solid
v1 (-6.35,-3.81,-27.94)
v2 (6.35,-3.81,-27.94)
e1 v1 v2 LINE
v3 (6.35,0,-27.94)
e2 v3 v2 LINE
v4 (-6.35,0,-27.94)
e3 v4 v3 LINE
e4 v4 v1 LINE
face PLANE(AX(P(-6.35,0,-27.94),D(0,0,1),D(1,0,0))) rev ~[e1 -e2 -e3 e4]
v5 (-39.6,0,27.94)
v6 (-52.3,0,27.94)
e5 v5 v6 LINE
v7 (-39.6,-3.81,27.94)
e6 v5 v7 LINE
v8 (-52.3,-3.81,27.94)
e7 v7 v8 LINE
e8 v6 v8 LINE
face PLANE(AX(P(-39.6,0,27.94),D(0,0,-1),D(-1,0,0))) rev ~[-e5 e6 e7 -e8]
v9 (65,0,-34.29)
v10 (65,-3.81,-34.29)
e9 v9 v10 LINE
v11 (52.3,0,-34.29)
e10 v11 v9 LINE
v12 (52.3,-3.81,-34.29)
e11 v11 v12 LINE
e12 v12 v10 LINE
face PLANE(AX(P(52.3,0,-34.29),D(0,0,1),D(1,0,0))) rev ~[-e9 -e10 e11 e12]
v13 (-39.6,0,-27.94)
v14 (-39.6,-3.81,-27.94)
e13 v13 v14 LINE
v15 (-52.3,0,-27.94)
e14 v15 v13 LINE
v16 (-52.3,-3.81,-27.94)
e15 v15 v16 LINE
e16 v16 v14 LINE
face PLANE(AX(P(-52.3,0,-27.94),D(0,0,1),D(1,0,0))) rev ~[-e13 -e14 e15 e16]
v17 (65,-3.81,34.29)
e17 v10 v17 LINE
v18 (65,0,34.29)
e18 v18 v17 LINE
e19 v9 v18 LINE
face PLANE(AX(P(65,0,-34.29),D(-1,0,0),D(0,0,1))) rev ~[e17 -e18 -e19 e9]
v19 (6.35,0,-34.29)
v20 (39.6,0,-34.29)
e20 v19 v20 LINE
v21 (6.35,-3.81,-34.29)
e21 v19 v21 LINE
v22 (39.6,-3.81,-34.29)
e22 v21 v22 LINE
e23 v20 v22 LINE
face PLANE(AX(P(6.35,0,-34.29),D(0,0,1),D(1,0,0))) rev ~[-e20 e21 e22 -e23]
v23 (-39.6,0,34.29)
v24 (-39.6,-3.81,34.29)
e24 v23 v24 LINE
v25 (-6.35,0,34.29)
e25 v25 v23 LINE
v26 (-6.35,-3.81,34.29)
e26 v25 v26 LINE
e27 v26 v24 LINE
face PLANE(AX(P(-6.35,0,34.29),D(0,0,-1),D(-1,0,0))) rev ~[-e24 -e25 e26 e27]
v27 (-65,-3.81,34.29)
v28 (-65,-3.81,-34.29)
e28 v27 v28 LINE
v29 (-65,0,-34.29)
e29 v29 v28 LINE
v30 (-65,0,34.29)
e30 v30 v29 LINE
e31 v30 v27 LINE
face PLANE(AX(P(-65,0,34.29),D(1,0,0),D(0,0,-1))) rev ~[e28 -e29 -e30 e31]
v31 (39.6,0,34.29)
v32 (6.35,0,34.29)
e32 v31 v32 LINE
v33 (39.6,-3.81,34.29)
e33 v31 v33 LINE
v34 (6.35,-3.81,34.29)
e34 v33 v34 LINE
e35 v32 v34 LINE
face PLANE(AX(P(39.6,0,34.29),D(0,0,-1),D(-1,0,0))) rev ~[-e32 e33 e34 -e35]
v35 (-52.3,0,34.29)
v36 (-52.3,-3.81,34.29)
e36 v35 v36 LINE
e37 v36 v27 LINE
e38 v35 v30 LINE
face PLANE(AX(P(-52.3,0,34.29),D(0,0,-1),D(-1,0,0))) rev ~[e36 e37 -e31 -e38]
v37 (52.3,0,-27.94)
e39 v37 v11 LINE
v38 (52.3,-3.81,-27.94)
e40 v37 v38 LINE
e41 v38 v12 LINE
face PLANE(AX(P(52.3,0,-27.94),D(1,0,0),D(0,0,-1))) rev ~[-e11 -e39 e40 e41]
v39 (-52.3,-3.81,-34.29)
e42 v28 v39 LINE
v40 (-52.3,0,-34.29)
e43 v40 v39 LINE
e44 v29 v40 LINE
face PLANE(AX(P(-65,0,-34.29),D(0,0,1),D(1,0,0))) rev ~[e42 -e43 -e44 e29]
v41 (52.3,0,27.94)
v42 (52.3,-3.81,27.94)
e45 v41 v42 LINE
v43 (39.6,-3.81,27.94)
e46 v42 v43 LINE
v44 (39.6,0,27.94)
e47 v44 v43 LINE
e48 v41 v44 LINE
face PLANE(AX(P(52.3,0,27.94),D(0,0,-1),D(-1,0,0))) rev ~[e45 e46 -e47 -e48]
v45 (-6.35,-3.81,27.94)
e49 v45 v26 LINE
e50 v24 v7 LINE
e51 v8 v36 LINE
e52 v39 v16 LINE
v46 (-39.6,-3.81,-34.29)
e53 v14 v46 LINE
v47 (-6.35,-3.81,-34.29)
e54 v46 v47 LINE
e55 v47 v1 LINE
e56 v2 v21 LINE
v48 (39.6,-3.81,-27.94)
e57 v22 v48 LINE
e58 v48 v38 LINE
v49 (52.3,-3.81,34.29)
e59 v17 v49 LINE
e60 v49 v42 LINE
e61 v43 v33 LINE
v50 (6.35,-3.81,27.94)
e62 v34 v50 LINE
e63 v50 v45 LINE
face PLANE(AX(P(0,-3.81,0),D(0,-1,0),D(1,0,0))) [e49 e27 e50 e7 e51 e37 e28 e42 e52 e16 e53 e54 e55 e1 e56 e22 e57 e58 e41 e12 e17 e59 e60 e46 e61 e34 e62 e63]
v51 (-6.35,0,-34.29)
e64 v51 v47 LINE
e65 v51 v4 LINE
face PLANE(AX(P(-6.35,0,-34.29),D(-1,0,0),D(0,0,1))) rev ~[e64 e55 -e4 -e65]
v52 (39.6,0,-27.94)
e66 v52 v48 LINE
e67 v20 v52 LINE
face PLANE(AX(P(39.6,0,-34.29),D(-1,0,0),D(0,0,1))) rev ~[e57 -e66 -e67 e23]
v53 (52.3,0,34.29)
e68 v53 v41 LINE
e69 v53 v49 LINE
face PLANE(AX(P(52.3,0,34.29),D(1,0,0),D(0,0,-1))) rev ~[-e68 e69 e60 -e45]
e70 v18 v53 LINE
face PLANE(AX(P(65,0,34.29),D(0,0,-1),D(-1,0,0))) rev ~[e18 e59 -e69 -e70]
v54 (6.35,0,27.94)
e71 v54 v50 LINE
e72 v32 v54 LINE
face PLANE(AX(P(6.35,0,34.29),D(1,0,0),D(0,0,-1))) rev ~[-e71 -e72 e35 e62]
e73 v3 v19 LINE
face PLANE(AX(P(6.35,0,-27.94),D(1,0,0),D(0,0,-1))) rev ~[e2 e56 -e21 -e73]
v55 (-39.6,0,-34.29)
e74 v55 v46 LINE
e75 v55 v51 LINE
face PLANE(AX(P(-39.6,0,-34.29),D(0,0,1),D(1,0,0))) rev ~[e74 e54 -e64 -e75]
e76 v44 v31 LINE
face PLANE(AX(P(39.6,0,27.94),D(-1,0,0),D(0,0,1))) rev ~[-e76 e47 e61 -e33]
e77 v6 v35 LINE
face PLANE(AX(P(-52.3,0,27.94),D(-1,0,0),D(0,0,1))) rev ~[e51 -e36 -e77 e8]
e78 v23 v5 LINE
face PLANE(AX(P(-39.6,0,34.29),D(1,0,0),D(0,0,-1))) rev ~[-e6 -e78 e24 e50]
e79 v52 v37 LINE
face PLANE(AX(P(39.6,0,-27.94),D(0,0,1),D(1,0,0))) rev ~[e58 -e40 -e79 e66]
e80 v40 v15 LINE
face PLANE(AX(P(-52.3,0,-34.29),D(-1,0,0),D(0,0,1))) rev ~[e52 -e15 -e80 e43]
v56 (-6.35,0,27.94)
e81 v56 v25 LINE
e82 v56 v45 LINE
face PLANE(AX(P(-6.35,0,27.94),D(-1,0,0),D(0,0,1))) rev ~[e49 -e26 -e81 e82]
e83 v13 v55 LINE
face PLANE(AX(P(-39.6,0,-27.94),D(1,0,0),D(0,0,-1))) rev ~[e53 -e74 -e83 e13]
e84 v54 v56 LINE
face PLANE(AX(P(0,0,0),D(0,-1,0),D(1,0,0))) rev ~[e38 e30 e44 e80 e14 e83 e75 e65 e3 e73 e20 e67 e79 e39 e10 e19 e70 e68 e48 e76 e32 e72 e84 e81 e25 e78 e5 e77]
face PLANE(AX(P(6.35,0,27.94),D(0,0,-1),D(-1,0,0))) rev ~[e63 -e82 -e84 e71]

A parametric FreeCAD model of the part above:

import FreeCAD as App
import Part
import Sketcher
from FreeCAD import Vector
Q = App.Units.Quantity

doc = App.newDocument("Part")
body = doc.addObject("PartDesign::Body", "Body")

sketch1 = body.newObject("Sketcher::SketchObject", "Sketch")
sketch1.AttachmentSupport = (doc.getObject("XZ_Plane"), [""])
sketch1.MapMode = "FlatFace"
sketch1.addGeometry(Part.LineSegment(Vector(-52.3, 34.29, 0), Vector(-65, 34.29, 0)), False)
sketch1.addGeometry(Part.LineSegment(Vector(-65, 34.29, 0), Vector(-65, -34.29, 0)), False)
sketch1.addGeometry(Part.LineSegment(Vector(-65, -34.29, 0), Vector(-52.3, -34.29, 0)), False)
sketch1.addGeometry(Part.LineSegment(Vector(-52.3, -34.29, 0), Vector(-52.3, -27.94, 0)), False)
sketch1.addGeometry(Part.LineSegment(Vector(-52.3, -27.94, 0), Vector(-39.6, -27.94, 0)), False)
sketch1.addGeometry(Part.LineSegment(Vector(-39.6, -27.94, 0), Vector(-39.6, -34.29, 0)), False)
sketch1.addGeometry(Part.LineSegment(Vector(-39.6, -34.29, 0), Vector(-6.35, -34.29, 0)), False)
sketch1.addGeometry(Part.LineSegment(Vector(-6.35, -34.29, 0), Vector(-6.35, -27.94, 0)), False)
sketch1.addGeometry(Part.LineSegment(Vector(-6.35, -27.94, 0), Vector(6.35, -27.94, 0)), False)
sketch1.addGeometry(Part.LineSegment(Vector(6.35, -27.94, 0), Vector(6.35, -34.29, 0)), False)
sketch1.addGeometry(Part.LineSegment(Vector(6.35, -34.29, 0), Vector(39.6, -34.29, 0)), False)
sketch1.addGeometry(Part.LineSegment(Vector(39.6, -34.29, 0), Vector(39.6, -27.94, 0)), False)
sketch1.addGeometry(Part.LineSegment(Vector(39.6, -27.94, 0), Vector(52.3, -27.94, 0)), False)
sketch1.addGeometry(Part.LineSegment(Vector(52.3, -27.94, 0), Vector(52.3, -34.29, 0)), False)
sketch1.addGeometry(Part.LineSegment(Vector(52.3, -34.29, 0), Vector(65, -34.29, 0)), False)
sketch1.addGeometry(Part.LineSegment(Vector(65, -34.29, 0), Vector(65, 34.29, 0)), False)
sketch1.addGeometry(Part.LineSegment(Vector(65, 34.29, 0), Vector(52.3, 34.29, 0)), False)
sketch1.addGeometry(Part.LineSegment(Vector(52.3, 34.29, 0), Vector(52.3, 27.94, 0)), False)
sketch1.addGeometry(Part.LineSegment(Vector(52.3, 27.94, 0), Vector(39.6, 27.94, 0)), False)
sketch1.addGeometry(Part.LineSegment(Vector(39.6, 27.94, 0), Vector(39.6, 34.29, 0)), False)
sketch1.addGeometry(Part.LineSegment(Vector(39.6, 34.29, 0), Vector(6.35, 34.29, 0)), False)
sketch1.addGeometry(Part.LineSegment(Vector(6.35, 34.29, 0), Vector(6.35, 27.94, 0)), False)
sketch1.addGeometry(Part.LineSegment(Vector(6.35, 27.94, 0), Vector(-6.35, 27.94, 0)), False)
sketch1.addGeometry(Part.LineSegment(Vector(-6.35, 27.94, 0), Vector(-6.35, 34.29, 0)), False)
sketch1.addGeometry(Part.LineSegment(Vector(-6.35, 34.29, 0), Vector(-39.6, 34.29, 0)), False)
sketch1.addGeometry(Part.LineSegment(Vector(-39.6, 34.29, 0), Vector(-39.6, 27.94, 0)), False)
sketch1.addGeometry(Part.LineSegment(Vector(-39.6, 27.94, 0), Vector(-52.3, 27.94, 0)), False)
sketch1.addGeometry(Part.LineSegment(Vector(-52.3, 27.94, 0), Vector(-52.3, 34.29, 0)), False)
sketch1.addConstraint(Sketcher.Constraint("Coincident", 0, 2, 1, 1))
sketch1.addConstraint(Sketcher.Constraint("Coincident", 1, 2, 2, 1))
sketch1.addConstraint(Sketcher.Constraint("Coincident", 2, 2, 3, 1))
sketch1.addConstraint(Sketcher.Constraint("Coincident", 3, 2, 4, 1))
sketch1.addConstraint(Sketcher.Constraint("Coincident", 4, 2, 5, 1))
sketch1.addConstraint(Sketcher.Constraint("Coincident", 5, 2, 6, 1))
sketch1.addConstraint(Sketcher.Constraint("Coincident", 6, 2, 7, 1))
sketch1.addConstraint(Sketcher.Constraint("Coincident", 7, 2, 8, 1))
sketch1.addConstraint(Sketcher.Constraint("Coincident", 8, 2, 9, 1))
sketch1.addConstraint(Sketcher.Constraint("Coincident", 9, 2, 10, 1))
sketch1.addConstraint(Sketcher.Constraint("Coincident", 10, 2, 11, 1))
sketch1.addConstraint(Sketcher.Constraint("Coincident", 11, 2, 12, 1))
sketch1.addConstraint(Sketcher.Constraint("Coincident", 12, 2, 13, 1))
sketch1.addConstraint(Sketcher.Constraint("Coincident", 13, 2, 14, 1))
sketch1.addConstraint(Sketcher.Constraint("Coincident", 14, 2, 15, 1))
sketch1.addConstraint(Sketcher.Constraint("Coincident", 15, 2, 16, 1))
sketch1.addConstraint(Sketcher.Constraint("Coincident", 16, 2, 17, 1))
sketch1.addConstraint(Sketcher.Constraint("Coincident", 17, 2, 18, 1))
sketch1.addConstraint(Sketcher.Constraint("Coincident", 18, 2, 19, 1))
sketch1.addConstraint(Sketcher.Constraint("Coincident", 19, 2, 20, 1))
sketch1.addConstraint(Sketcher.Constraint("Coincident", 20, 2, 21, 1))
sketch1.addConstraint(Sketcher.Constraint("Coincident", 21, 2, 22, 1))
sketch1.addConstraint(Sketcher.Constraint("Coincident", 22, 2, 23, 1))
sketch1.addConstraint(Sketcher.Constraint("Coincident", 23, 2, 24, 1))
sketch1.addConstraint(Sketcher.Constraint("Coincident", 24, 2, 25, 1))
sketch1.addConstraint(Sketcher.Constraint("Coincident", 25, 2, 26, 1))
sketch1.addConstraint(Sketcher.Constraint("Coincident", 26, 2, 27, 1))
sketch1.addConstraint(Sketcher.Constraint("Coincident", 27, 2, 0, 1))
sketch1.addConstraint(Sketcher.Constraint("Horizontal", 0))
sketch1.addConstraint(Sketcher.Constraint("Vertical", 1))
sketch1.addConstraint(Sketcher.Constraint("Horizontal", 2))
sketch1.addConstraint(Sketcher.Constraint("Vertical", 3))
sketch1.addConstraint(Sketcher.Constraint("Horizontal", 4))
sketch1.addConstraint(Sketcher.Constraint("Vertical", 5))
sketch1.addConstraint(Sketcher.Constraint("Horizontal", 6))
sketch1.addConstraint(Sketcher.Constraint("Vertical", 7))
sketch1.addConstraint(Sketcher.Constraint("Horizontal", 8))
sketch1.addConstraint(Sketcher.Constraint("Vertical", 9))
sketch1.addConstraint(Sketcher.Constraint("Horizontal", 10))
sketch1.addConstraint(Sketcher.Constraint("Vertical", 11))
sketch1.addConstraint(Sketcher.Constraint("Horizontal", 12))
sketch1.addConstraint(Sketcher.Constraint("Vertical", 13))
sketch1.addConstraint(Sketcher.Constraint("Horizontal", 14))
sketch1.addConstraint(Sketcher.Constraint("Vertical", 15))
sketch1.addConstraint(Sketcher.Constraint("Horizontal", 16))
sketch1.addConstraint(Sketcher.Constraint("Vertical", 17))
sketch1.addConstraint(Sketcher.Constraint("Horizontal", 18))
sketch1.addConstraint(Sketcher.Constraint("Vertical", 19))
sketch1.addConstraint(Sketcher.Constraint("Horizontal", 20))
sketch1.addConstraint(Sketcher.Constraint("Vertical", 21))
sketch1.addConstraint(Sketcher.Constraint("Horizontal", 22))
sketch1.addConstraint(Sketcher.Constraint("Vertical", 23))
sketch1.addConstraint(Sketcher.Constraint("Horizontal", 24))
sketch1.addConstraint(Sketcher.Constraint("Vertical", 25))
sketch1.addConstraint(Sketcher.Constraint("Horizontal", 26))
sketch1.addConstraint(Sketcher.Constraint("Vertical", 27))
sketch1.addConstraint(Sketcher.Constraint("Symmetric", 0, 2, 14, 2, -1, 1))
sketch1.addConstraint(Sketcher.Constraint("Symmetric", 2, 2, 16, 2, -1, 1))
sketch1.addConstraint(Sketcher.Constraint("Symmetric", 4, 2, 18, 2, -1, 1))
sketch1.addConstraint(Sketcher.Constraint("Symmetric", 6, 2, 20, 2, -1, 1))
sketch1.addConstraint(Sketcher.Constraint("Symmetric", 8, 2, 22, 2, -1, 1))
sketch1.addConstraint(Sketcher.Constraint("Symmetric", 10, 2, 24, 2, -1, 1))
sketch1.addConstraint(Sketcher.Constraint("Symmetric", 12, 2, 26, 2, -1, 1))
sketch1.addConstraint(Sketcher.Constraint("Symmetric", 6, 2, 9, 2, -2))
sketch1.addConstraint(Sketcher.Constraint("Symmetric", 4, 2, 11, 2, -2))
sketch1.addConstraint(Sketcher.Constraint("Symmetric", 2, 2, 13, 2, -2))
sketch1.addConstraint(Sketcher.Constraint("Horizontal", 2, 2, 5, 2))
sketch1.addConstraint(Sketcher.Constraint("Horizontal", 4, 2, 7, 2))
sketch1.addConstraint(Sketcher.Constraint("Equal", 2, 4))
sketch1.addConstraint(Sketcher.Constraint("Equal", 4, 8))
sketch1.addConstraint(Sketcher.Constraint("DistanceX", 0, 2, 0, 1, Q("0.5 in")))
sketch1.addConstraint(Sketcher.Constraint("DistanceY", 1, 2, 1, 1, Q("2.7 in")))
sketch1.addConstraint(Sketcher.Constraint("DistanceY", 3, 1, 3, 2, Q("0.25 in")))
sketch1.addConstraint(Sketcher.Constraint("DistanceX", 6, 1, 6, 2, 33.25))
pad1 = body.newObject("PartDesign::Pad", "Pad")
pad1.Profile = sketch1
pad1.Length = Q("0.15 in")

doc.recompute()
